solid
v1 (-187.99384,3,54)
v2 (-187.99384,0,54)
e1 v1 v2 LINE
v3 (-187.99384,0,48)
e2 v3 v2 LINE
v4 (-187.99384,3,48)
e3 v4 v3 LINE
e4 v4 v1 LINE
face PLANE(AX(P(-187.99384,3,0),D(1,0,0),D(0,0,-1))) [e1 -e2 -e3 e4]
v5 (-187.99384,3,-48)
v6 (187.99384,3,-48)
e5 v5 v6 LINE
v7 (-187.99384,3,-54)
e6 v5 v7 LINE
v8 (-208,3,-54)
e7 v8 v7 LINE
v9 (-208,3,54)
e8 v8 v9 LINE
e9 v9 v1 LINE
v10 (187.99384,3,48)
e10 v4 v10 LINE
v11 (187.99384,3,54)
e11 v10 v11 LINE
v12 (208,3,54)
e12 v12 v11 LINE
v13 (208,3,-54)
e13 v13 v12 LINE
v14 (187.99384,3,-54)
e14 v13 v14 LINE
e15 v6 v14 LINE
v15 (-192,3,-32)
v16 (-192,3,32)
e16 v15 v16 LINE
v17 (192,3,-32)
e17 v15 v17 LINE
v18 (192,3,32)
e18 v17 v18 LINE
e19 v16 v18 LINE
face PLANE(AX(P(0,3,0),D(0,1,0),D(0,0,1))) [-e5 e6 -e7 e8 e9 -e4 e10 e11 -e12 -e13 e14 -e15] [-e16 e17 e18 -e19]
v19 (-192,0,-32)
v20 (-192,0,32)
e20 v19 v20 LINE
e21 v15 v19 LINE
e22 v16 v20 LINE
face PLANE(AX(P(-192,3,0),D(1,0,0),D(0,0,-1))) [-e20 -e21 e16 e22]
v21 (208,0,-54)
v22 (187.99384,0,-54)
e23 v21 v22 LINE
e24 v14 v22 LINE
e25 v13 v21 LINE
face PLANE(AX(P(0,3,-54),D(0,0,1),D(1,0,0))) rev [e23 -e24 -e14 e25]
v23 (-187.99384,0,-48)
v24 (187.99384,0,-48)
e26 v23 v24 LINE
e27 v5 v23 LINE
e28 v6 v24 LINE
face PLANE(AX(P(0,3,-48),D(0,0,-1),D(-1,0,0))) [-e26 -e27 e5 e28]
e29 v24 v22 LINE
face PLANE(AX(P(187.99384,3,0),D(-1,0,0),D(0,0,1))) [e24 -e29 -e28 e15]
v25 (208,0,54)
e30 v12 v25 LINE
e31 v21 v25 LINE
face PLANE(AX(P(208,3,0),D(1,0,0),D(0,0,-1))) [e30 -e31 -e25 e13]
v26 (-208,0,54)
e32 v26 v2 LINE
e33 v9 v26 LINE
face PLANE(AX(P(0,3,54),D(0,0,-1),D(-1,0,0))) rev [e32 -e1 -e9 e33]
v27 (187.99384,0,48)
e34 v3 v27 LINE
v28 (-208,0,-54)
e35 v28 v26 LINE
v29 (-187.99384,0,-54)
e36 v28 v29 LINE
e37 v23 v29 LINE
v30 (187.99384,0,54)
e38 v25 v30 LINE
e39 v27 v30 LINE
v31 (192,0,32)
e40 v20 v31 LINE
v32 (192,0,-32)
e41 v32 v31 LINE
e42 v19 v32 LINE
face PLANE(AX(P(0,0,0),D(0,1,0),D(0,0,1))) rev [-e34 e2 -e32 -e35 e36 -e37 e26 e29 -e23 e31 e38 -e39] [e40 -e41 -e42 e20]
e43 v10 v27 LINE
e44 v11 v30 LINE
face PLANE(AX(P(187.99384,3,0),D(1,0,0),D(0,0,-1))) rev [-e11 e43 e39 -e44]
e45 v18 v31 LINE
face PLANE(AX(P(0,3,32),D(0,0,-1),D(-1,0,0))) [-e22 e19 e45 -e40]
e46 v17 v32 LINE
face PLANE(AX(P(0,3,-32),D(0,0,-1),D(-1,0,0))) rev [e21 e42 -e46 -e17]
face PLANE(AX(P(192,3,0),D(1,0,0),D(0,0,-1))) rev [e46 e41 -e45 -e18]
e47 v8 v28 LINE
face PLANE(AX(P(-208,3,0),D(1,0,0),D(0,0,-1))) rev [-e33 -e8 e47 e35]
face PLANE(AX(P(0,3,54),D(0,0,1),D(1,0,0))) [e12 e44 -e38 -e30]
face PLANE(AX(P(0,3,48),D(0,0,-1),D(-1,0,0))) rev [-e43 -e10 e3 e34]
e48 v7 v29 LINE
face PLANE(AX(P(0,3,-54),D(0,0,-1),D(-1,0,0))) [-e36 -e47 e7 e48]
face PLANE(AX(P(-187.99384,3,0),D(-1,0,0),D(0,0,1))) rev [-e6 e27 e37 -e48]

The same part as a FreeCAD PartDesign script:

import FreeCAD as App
import Part
import Sketcher
from FreeCAD import Vector
Q = App.Units.Quantity


def add_polygon(sketch, points):
    """Adds a closed chain of lines whose ends are joined by coincident constraints."""
    first, n = sketch.GeometryCount, len(points)
    for a, b in zip(points, points[1:] + points[:1]):
        sketch.addGeometry(Part.LineSegment(App.Vector(*a, 0), App.Vector(*b, 0)), False)
    for i in range(n):
        sketch.addConstraint(Sketcher.Constraint("Coincident", first + i, 2, first + (i + 1) % n, 1))

doc = App.newDocument("Part")
body = doc.addObject("PartDesign::Body", "Body")

sketch1 = body.newObject("Sketcher::SketchObject", "Sketch")
sketch1.AttachmentSupport = (doc.getObject("XZ_Plane"), [""])
sketch1.MapMode = "FlatFace"
add_polygon(sketch1, [(-188, 48), (188, 48), (188, 54), (208, 54), (208, -54), (188, -54), (188, -48), (-188, -48), (-188, -54), (-208, -54), (-208, 54), (-188, 54)])
add_polygon(sketch1, [(192, 32), (-192, 32), (-192, -32), (192, -32)])
sketch1.addConstraint(Sketcher.Constraint("Horizontal", 0))
sketch1.addConstraint(Sketcher.Constraint("Vertical", 1))
sketch1.addConstraint(Sketcher.Constraint("Horizontal", 2))
sketch1.addConstraint(Sketcher.Constraint("Vertical", 3))
sketch1.addConstraint(Sketcher.Constraint("Horizontal", 4))
sketch1.addConstraint(Sketcher.Constraint("Vertical", 5))
sketch1.addConstraint(Sketcher.Constraint("Horizontal", 6))
sketch1.addConstraint(Sketcher.Constraint("Vertical", 7))
sketch1.addConstraint(Sketcher.Constraint("Horizontal", 8))
sketch1.addConstraint(Sketcher.Constraint("Vertical", 9))
sketch1.addConstraint(Sketcher.Constraint("Horizontal", 10))
sketch1.addConstraint(Sketcher.Constraint("Vertical", 11))
sketch1.addConstraint(Sketcher.Constraint("Horizontal", 12))
sketch1.addConstraint(Sketcher.Constraint("Vertical", 13))
sketch1.addConstraint(Sketcher.Constraint("Horizontal", 14))
sketch1.addConstraint(Sketcher.Constraint("Vertical", 15))
sketch1.addConstraint(Sketcher.Constraint("Symmetric", 0, 2, 6, 2, -1, 1))
sketch1.addConstraint(Sketcher.Constraint("Symmetric", 2, 2, 8, 2, -1, 1))
sketch1.addConstraint(Sketcher.Constraint("Symmetric", 4, 2, 10, 2, -1, 1))
sketch1.addConstraint(Sketcher.Constraint("Symmetric", 12, 2, 14, 2, -1, 1))
sketch1.addConstraint(Sketcher.Constraint("Symmetric", 4, 2, 7, 2, -2))
sketch1.addConstraint(Sketcher.Constraint("DistanceX", 12, 2, 12, 1, Q("384 mm")))
sketch1.addConstraint(Sketcher.Constraint("DistanceY", 1, 1, 1, 2, Q("6 mm")))
sketch1.addConstraint(Sketcher.Constraint("DistanceY", 3, 2, 3, 1, Q("108 mm")))
sketch1.addConstraint(Sketcher.Constraint("DistanceY", 13, 2, 13, 1, Q("64 mm")))
sketch1.addConstraint(Sketcher.Constraint("DistanceX", -1, 1, 2, 2, Q("208 mm")))
sketch1.addConstraint(Sketcher.Constraint("DistanceX", 0, 1, 0, 2, Q("375.98768 mm")))
pad1 = body.newObject("PartDesign::Pad", "Pad")
pad1.Profile = sketch1
pad1.Length = 3
pad1.Reversed = True

doc.recompute()
